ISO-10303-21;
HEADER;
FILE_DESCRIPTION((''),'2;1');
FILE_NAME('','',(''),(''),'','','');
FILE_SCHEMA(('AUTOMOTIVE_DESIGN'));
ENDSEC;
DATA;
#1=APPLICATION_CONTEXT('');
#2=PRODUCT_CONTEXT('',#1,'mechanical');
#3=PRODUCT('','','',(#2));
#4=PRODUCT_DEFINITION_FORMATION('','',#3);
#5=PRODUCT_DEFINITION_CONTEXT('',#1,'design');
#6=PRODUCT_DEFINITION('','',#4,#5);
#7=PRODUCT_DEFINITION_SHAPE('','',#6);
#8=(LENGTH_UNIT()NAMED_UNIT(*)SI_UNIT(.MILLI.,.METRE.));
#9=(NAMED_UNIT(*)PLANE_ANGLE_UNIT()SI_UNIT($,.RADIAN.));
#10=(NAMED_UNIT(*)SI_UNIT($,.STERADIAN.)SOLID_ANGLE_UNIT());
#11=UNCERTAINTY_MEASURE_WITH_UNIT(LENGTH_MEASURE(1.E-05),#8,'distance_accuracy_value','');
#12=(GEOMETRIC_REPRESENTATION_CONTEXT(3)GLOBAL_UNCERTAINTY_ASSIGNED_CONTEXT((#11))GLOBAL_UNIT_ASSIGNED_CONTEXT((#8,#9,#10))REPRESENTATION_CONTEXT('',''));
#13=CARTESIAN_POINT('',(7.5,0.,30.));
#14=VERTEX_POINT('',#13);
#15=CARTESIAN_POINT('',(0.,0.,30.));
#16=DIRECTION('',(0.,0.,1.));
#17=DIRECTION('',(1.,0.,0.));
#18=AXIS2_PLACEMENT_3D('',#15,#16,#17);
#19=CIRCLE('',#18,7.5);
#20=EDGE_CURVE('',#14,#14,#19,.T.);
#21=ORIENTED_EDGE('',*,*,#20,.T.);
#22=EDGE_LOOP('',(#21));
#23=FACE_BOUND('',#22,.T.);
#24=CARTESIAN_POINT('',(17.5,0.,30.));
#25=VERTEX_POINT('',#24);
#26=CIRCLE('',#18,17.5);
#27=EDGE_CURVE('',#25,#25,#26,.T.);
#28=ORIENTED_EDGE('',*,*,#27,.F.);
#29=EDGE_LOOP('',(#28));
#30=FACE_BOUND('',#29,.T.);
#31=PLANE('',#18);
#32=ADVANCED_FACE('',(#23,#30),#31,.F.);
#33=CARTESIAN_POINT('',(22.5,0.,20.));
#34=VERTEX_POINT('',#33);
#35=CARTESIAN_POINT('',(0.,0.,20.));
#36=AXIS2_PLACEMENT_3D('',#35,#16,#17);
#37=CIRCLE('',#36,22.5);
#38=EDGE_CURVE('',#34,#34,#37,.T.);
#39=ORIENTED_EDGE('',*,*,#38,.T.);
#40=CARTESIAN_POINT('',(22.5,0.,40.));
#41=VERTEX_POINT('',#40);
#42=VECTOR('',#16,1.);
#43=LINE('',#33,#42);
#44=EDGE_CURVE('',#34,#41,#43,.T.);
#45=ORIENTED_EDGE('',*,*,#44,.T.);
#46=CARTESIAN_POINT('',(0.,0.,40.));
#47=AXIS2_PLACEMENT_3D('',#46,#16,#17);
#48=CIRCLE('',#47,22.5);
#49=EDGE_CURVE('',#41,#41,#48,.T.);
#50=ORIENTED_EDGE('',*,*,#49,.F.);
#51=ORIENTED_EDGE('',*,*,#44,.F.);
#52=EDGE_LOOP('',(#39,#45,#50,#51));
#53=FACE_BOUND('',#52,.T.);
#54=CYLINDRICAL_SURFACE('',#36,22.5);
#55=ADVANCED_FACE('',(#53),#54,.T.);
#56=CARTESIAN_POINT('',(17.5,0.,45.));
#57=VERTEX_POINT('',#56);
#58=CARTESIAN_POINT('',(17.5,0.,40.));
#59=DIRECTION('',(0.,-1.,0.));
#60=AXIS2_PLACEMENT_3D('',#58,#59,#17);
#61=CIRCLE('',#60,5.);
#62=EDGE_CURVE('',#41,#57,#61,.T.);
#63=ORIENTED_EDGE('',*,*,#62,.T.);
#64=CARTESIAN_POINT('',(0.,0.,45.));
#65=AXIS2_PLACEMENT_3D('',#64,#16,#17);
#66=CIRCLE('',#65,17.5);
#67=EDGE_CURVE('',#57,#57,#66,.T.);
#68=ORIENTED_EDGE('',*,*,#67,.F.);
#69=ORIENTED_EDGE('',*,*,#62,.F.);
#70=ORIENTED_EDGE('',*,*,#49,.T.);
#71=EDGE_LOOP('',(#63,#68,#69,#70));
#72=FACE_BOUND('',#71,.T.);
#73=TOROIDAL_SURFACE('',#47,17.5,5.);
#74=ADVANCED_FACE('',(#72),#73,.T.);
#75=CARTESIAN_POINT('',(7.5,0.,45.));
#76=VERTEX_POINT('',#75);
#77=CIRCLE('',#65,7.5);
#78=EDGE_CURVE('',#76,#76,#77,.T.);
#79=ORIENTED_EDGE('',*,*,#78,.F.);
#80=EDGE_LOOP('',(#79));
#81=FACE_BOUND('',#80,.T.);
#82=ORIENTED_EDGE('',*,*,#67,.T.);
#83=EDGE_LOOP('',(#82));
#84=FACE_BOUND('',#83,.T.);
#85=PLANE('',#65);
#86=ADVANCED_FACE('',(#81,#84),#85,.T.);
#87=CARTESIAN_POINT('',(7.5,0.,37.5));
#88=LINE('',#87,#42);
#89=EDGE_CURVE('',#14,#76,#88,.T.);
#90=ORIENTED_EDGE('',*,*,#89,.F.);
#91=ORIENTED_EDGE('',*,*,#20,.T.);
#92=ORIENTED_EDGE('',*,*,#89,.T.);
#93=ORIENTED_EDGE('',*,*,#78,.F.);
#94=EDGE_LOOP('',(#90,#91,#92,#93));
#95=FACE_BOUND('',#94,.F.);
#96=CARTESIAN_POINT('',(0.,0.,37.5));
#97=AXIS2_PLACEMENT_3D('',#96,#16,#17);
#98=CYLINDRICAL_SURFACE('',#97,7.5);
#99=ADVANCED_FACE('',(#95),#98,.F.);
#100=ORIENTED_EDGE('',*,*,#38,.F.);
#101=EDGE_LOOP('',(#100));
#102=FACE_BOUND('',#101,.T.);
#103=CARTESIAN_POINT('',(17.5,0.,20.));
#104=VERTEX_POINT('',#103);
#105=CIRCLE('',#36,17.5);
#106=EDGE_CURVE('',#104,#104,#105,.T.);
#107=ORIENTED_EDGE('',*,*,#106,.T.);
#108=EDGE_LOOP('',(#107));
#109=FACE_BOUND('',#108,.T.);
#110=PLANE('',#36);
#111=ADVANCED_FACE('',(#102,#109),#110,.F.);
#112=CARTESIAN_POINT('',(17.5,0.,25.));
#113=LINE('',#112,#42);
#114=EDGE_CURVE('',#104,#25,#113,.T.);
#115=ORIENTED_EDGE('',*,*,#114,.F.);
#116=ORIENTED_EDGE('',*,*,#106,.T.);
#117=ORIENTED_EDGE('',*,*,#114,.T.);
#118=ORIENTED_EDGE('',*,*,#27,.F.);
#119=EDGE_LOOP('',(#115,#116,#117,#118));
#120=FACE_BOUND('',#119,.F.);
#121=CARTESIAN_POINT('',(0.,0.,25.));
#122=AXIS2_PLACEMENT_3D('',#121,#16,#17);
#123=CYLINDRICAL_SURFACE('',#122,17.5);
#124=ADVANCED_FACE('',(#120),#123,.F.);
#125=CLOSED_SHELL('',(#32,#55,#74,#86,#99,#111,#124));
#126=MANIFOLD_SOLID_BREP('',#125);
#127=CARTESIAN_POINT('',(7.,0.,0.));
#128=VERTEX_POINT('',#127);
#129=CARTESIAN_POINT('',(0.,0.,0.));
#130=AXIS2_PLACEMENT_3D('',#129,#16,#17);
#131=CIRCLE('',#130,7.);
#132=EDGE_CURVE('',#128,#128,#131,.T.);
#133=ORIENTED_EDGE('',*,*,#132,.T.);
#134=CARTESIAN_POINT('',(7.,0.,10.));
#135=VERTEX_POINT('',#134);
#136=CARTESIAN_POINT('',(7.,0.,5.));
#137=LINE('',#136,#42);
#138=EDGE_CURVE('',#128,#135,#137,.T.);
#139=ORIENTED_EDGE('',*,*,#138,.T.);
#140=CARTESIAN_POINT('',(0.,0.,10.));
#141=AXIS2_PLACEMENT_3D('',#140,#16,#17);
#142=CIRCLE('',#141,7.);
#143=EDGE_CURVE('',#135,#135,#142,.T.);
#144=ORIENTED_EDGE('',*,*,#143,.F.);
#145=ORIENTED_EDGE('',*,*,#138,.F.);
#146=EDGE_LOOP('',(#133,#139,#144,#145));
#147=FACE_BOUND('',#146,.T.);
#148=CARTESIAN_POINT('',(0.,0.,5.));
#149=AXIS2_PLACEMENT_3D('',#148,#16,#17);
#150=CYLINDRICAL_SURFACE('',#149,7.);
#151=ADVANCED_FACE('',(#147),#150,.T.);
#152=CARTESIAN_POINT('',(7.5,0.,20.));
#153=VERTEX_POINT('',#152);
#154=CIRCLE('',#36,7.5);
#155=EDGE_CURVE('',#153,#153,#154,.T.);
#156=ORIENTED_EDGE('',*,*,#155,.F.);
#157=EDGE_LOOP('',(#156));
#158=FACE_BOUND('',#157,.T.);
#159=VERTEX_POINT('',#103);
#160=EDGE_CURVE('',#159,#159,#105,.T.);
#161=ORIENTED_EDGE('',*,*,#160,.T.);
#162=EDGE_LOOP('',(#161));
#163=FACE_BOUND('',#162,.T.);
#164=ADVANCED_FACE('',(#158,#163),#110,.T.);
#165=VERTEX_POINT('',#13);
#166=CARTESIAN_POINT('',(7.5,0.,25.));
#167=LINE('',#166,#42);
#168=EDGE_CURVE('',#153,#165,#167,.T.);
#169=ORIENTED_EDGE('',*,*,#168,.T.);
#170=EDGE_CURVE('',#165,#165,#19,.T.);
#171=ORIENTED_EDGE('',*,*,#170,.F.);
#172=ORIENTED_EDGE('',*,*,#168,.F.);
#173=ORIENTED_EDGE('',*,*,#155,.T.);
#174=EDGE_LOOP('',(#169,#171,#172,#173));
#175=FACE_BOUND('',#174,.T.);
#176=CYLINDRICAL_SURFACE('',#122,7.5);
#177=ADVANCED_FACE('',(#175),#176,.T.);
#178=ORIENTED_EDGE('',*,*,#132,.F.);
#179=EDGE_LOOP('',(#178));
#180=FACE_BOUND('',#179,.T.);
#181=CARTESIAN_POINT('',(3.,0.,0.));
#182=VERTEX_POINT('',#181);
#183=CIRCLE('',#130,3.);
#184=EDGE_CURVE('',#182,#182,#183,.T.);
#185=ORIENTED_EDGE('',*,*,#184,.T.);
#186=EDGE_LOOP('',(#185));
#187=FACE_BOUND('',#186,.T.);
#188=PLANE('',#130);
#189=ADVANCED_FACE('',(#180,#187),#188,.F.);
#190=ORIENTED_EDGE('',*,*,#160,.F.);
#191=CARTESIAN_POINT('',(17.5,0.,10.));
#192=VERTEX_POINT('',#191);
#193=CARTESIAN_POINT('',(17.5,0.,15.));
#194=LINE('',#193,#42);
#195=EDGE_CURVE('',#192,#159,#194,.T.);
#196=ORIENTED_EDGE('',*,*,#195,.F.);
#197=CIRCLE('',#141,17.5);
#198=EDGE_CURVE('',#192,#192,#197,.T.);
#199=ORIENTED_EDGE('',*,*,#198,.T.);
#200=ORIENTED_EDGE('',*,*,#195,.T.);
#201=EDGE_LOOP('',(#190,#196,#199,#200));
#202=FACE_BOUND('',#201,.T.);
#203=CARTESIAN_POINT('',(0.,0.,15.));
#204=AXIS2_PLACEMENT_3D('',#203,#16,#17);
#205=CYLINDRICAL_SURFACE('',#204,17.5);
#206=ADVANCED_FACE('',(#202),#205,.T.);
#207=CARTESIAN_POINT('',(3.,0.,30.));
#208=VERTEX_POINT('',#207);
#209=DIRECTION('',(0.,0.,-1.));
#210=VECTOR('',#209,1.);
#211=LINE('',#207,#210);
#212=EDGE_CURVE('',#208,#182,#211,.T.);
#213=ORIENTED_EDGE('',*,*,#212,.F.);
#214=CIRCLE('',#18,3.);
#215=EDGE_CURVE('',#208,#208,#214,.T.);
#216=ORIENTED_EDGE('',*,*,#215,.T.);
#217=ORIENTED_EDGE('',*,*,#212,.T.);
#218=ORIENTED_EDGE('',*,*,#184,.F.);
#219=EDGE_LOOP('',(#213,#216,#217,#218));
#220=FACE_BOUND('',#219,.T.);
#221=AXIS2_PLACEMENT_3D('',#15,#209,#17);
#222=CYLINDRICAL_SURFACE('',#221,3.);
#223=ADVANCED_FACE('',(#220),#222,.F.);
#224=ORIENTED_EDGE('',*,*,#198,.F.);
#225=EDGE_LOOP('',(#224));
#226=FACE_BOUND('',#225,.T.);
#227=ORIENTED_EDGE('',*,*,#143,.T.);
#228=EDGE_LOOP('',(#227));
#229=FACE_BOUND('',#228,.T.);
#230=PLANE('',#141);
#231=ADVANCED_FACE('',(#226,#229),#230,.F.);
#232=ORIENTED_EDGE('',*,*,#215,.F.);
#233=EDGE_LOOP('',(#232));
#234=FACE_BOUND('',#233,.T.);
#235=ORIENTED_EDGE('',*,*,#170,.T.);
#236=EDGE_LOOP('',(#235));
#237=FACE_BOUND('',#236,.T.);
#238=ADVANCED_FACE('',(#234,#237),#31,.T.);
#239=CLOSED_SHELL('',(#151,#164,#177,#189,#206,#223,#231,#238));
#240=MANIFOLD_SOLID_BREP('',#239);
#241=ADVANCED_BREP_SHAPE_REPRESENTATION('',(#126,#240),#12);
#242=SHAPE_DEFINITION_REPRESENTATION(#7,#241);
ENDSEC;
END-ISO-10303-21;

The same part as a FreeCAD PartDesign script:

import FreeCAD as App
import Part
import Sketcher

V = App.Vector


def edges_at(feature, points):
    """Names of the edges that pass closest to the given points."""
    edges = feature.Shape.Edges
    near = lambda p: min(range(len(edges)), key=lambda i: edges[i].distToShape(Part.Vertex(*p))[0])
    return sorted({f"Edge{near(p) + 1}" for p in points})


def add_polygon(sketch, points):
    """Adds a closed chain of lines whose ends are joined by coincident constraints."""
    first, n = sketch.GeometryCount, len(points)
    for a, b in zip(points, points[1:] + points[:1]):
        sketch.addGeometry(Part.LineSegment(App.Vector(*a, 0), App.Vector(*b, 0)), False)
    for i in range(n):
        sketch.addConstraint(Sketcher.Constraint("Coincident", first + i, 2, first + (i + 1) % n, 1))

doc = App.newDocument("Part")
body = doc.addObject("PartDesign::Body", "Body")

sketch1 = body.newObject("Sketcher::SketchObject", "Sketch")
sketch1.AttachmentSupport = (doc.getObject("XZ_Plane"), [""])
sketch1.MapMode = "FlatFace"
add_polygon(sketch1, [(8, 45), (8, 30), (18, 30), (18, 20), (22, 20), (22, 45)])
sketch1.addConstraint(Sketcher.Constraint("Vertical", 0))
sketch1.addConstraint(Sketcher.Constraint("Horizontal", 1))
sketch1.addConstraint(Sketcher.Constraint("Vertical", 2))
sketch1.addConstraint(Sketcher.Constraint("Horizontal", 3))
sketch1.addConstraint(Sketcher.Constraint("Vertical", 4))
sketch1.addConstraint(Sketcher.Constraint("Horizontal", 5))
sketch1.addConstraint(Sketcher.Constraint("Equal", 5, 0))
sketch1.addConstraint(Sketcher.Constraint("Equal", 1, 2))
sketch1.addConstraint(Sketcher.Constraint("DistanceX", 1, 1, 1, 2, 10.0))
sketch1.addConstraint(Sketcher.Constraint("DistanceX", 3, 1, 3, 2, 5.0))
sketch1.addConstraint(Sketcher.Constraint("DistanceY", -1, 1, 0, 2, 30.0))
sketch1.addConstraint(Sketcher.Constraint("DistanceX", -1, 1, 0, 2, 7.5))
revolution = body.newObject("PartDesign::Revolution", "Revolution")
revolution.Profile = sketch1
revolution.ReferenceAxis = (sketch1, ["V_Axis"])
revolution.Angle = 360
doc.recompute()

fillet = body.newObject("PartDesign::Fillet", "Fillet")
fillet.Base = (revolution, edges_at(revolution, [(-22.5, 0, 45)]))
fillet.Radius = 5
body2 = doc.addObject("PartDesign::Body", "Body001")

sketch2 = body2.newObject("Sketcher::SketchObject", "Sketch001")
sketch2.AttachmentSupport = (doc.getObject("XZ_Plane001"), [""])
sketch2.MapMode = "FlatFace"
add_polygon(sketch2, [(17.5, 10), (17.5, 20), (7.5, 20), (7.5, 30), (3, 30), (3, 0), (7, 0), (7, 10)])
sketch2.addConstraint(Sketcher.Constraint("Vertical", 0))
sketch2.addConstraint(Sketcher.Constraint("Horizontal", 1))
sketch2.addConstraint(Sketcher.Constraint("Vertical", 2))
sketch2.addConstraint(Sketcher.Constraint("Horizontal", 3))
sketch2.addConstraint(Sketcher.Constraint("Vertical", 4))
sketch2.addConstraint(Sketcher.Constraint("Horizontal", 5))
sketch2.addConstraint(Sketcher.Constraint("Vertical", 6))
sketch2.addConstraint(Sketcher.Constraint("Horizontal", 7))
sketch2.addConstraint(Sketcher.Constraint("PointOnObject", 4, 2, -1))
sketch2.addConstraint(Sketcher.Constraint("Equal", 1, 0))
sketch2.addConstraint(Sketcher.Constraint("Equal", 0, 2))
sketch2.addConstraint(Sketcher.Constraint("Equal", 2, 6))
sketch2.addConstraint(Sketcher.Constraint("DistanceX", 1, 2, 1, 1, 10.0))
sketch2.addConstraint(Sketcher.Constraint("DistanceX", 5, 1, 5, 2, 4.0))
sketch2.addConstraint(Sketcher.Constraint("DistanceX", 3, 2, 3, 1, 4.5))
sketch2.addConstraint(Sketcher.Constraint("DistanceX", -1, 1, 3, 2, 3.0))
revolution2 = body2.newObject("PartDesign::Revolution", "Revolution001")
revolution2.Profile = sketch2
revolution2.ReferenceAxis = (sketch2, ["V_Axis"])
revolution2.Angle = 360

doc.recompute()
